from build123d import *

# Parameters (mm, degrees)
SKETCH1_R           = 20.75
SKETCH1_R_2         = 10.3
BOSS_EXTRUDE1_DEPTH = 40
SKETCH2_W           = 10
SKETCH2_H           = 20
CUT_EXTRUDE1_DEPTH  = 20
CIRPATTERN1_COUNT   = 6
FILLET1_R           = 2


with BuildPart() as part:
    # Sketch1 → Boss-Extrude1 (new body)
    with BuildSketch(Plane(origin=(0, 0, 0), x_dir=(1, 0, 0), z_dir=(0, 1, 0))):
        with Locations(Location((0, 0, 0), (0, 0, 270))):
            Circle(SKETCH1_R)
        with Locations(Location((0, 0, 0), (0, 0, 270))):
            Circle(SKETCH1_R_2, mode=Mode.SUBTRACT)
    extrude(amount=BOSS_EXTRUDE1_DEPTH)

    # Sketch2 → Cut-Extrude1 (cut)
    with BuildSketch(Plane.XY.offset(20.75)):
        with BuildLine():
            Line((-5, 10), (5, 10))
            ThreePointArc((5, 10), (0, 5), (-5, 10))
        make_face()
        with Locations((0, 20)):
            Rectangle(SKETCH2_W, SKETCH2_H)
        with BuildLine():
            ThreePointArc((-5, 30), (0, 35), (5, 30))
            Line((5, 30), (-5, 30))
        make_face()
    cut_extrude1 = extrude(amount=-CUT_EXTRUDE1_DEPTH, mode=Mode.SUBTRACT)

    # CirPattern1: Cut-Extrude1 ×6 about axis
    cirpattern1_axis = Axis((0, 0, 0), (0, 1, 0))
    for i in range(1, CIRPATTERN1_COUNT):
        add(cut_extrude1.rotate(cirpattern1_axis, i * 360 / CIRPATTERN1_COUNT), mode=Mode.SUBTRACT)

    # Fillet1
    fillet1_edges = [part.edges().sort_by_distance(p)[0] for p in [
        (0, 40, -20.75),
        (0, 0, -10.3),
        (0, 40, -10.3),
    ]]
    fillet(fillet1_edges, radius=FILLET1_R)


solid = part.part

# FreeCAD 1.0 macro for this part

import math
import FreeCAD as App
import Part
import Sketcher
from FreeCAD import Vector


def edges_at(feature, points):
    """Names of the edges that pass closest to the given points."""
    edges = feature.Shape.Edges
    near = lambda p: min(range(len(edges)), key=lambda i: edges[i].distToShape(Part.Vertex(*p))[0])
    return sorted({f"Edge{near(p) + 1}" for p in points})

doc = App.newDocument("Part")
body = doc.addObject("PartDesign::Body", "Body")

# Sketch on XZ plane
sketch1 = body.newObject("Sketcher::SketchObject", "Sketch")
sketch1.AttachmentSupport = (doc.getObject("XZ_Plane"), [""])
sketch1.MapMode = "FlatFace"
sketch1.addGeometry([
    Part.Circle(Vector(0, 0, 0), Vector(0, 0, 1), 20.75),
    Part.Circle(Vector(0, 0, 0), Vector(0, 0, 1), 10.3),
], False)
sketch1.addConstraint([
    Sketcher.Constraint("Coincident", 0, 3, -1, 1),
    Sketcher.Constraint("Coincident", 1, 3, -1, 1),
    Sketcher.Constraint("Diameter", 0, 41.5),
    Sketcher.Constraint("Diameter", 1, 20.6),
])
pad1 = body.newObject("PartDesign::Pad", "Pad")
pad1.Profile = sketch1
pad1.Length = 40
pad1.Reversed = True

# Sketch on XY plane
sketch2 = body.newObject("Sketcher::SketchObject", "Sketch001")
sketch2.AttachmentSupport = (doc.getObject("XY_Plane"), [""])
sketch2.MapMode = "FlatFace"
sketch2.AttachmentOffset = App.Placement(Vector(0, 0, 20.75), App.Rotation())
sketch2.addGeometry([
    Part.ArcOfCircle(Part.Circle(Vector(0, 10, 0), Vector(0, 0, 1), 5), math.radians(180), math.radians(360)),
    Part.LineSegment(Vector(5, 10, 0), Vector(5, 30, 0)),
    Part.ArcOfCircle(Part.Circle(Vector(0, 30, 0), Vector(0, 0, 1), 5), math.radians(0), math.radians(180)),
    Part.LineSegment(Vector(-5, 30, 0), Vector(-5, 10, 0)),
], False)
sketch2.addConstraint([
    Sketcher.Constraint("Tangent", 0, 2, 1, 1),
    Sketcher.Constraint("Tangent", 1, 2, 2, 1),
    Sketcher.Constraint("Tangent", 2, 2, 3, 1),
    Sketcher.Constraint("Tangent", 3, 2, 0, 1),
    Sketcher.Constraint("Vertical", 1),
    Sketcher.Constraint("Vertical", 3),
    Sketcher.Constraint("PointOnObject", 0, 3, -2),
    Sketcher.Constraint("Radius", 0, 5.0),
    Sketcher.Constraint("DistanceY", 1, 1, 1, 2, 20.0),
    Sketcher.Constraint("DistanceY", -1, 1, 0, 3, 10.0),
])
pocket1 = body.newObject("PartDesign::Pocket", "Pocket")
pocket1.Profile = sketch2
pocket1.Length = 20
doc.recompute()

polarpattern = body.newObject("PartDesign::PolarPattern", "PolarPattern")
polarpattern.Originals = [pocket1]
polarpattern.Axis = (doc.getObject("Y_Axis"), [""])
polarpattern.Angle = 360
polarpattern.Occurrences = 6
body.Tip = polarpattern
doc.recompute()

fillet = body.newObject("PartDesign::Fillet", "Fillet")
fillet.Base = (polarpattern, edges_at(polarpattern, [(0, 40, -20.75), (0, 0, -10.3), (0, 40, -10.3)]))
fillet.Radius = 2

doc.recompute()
